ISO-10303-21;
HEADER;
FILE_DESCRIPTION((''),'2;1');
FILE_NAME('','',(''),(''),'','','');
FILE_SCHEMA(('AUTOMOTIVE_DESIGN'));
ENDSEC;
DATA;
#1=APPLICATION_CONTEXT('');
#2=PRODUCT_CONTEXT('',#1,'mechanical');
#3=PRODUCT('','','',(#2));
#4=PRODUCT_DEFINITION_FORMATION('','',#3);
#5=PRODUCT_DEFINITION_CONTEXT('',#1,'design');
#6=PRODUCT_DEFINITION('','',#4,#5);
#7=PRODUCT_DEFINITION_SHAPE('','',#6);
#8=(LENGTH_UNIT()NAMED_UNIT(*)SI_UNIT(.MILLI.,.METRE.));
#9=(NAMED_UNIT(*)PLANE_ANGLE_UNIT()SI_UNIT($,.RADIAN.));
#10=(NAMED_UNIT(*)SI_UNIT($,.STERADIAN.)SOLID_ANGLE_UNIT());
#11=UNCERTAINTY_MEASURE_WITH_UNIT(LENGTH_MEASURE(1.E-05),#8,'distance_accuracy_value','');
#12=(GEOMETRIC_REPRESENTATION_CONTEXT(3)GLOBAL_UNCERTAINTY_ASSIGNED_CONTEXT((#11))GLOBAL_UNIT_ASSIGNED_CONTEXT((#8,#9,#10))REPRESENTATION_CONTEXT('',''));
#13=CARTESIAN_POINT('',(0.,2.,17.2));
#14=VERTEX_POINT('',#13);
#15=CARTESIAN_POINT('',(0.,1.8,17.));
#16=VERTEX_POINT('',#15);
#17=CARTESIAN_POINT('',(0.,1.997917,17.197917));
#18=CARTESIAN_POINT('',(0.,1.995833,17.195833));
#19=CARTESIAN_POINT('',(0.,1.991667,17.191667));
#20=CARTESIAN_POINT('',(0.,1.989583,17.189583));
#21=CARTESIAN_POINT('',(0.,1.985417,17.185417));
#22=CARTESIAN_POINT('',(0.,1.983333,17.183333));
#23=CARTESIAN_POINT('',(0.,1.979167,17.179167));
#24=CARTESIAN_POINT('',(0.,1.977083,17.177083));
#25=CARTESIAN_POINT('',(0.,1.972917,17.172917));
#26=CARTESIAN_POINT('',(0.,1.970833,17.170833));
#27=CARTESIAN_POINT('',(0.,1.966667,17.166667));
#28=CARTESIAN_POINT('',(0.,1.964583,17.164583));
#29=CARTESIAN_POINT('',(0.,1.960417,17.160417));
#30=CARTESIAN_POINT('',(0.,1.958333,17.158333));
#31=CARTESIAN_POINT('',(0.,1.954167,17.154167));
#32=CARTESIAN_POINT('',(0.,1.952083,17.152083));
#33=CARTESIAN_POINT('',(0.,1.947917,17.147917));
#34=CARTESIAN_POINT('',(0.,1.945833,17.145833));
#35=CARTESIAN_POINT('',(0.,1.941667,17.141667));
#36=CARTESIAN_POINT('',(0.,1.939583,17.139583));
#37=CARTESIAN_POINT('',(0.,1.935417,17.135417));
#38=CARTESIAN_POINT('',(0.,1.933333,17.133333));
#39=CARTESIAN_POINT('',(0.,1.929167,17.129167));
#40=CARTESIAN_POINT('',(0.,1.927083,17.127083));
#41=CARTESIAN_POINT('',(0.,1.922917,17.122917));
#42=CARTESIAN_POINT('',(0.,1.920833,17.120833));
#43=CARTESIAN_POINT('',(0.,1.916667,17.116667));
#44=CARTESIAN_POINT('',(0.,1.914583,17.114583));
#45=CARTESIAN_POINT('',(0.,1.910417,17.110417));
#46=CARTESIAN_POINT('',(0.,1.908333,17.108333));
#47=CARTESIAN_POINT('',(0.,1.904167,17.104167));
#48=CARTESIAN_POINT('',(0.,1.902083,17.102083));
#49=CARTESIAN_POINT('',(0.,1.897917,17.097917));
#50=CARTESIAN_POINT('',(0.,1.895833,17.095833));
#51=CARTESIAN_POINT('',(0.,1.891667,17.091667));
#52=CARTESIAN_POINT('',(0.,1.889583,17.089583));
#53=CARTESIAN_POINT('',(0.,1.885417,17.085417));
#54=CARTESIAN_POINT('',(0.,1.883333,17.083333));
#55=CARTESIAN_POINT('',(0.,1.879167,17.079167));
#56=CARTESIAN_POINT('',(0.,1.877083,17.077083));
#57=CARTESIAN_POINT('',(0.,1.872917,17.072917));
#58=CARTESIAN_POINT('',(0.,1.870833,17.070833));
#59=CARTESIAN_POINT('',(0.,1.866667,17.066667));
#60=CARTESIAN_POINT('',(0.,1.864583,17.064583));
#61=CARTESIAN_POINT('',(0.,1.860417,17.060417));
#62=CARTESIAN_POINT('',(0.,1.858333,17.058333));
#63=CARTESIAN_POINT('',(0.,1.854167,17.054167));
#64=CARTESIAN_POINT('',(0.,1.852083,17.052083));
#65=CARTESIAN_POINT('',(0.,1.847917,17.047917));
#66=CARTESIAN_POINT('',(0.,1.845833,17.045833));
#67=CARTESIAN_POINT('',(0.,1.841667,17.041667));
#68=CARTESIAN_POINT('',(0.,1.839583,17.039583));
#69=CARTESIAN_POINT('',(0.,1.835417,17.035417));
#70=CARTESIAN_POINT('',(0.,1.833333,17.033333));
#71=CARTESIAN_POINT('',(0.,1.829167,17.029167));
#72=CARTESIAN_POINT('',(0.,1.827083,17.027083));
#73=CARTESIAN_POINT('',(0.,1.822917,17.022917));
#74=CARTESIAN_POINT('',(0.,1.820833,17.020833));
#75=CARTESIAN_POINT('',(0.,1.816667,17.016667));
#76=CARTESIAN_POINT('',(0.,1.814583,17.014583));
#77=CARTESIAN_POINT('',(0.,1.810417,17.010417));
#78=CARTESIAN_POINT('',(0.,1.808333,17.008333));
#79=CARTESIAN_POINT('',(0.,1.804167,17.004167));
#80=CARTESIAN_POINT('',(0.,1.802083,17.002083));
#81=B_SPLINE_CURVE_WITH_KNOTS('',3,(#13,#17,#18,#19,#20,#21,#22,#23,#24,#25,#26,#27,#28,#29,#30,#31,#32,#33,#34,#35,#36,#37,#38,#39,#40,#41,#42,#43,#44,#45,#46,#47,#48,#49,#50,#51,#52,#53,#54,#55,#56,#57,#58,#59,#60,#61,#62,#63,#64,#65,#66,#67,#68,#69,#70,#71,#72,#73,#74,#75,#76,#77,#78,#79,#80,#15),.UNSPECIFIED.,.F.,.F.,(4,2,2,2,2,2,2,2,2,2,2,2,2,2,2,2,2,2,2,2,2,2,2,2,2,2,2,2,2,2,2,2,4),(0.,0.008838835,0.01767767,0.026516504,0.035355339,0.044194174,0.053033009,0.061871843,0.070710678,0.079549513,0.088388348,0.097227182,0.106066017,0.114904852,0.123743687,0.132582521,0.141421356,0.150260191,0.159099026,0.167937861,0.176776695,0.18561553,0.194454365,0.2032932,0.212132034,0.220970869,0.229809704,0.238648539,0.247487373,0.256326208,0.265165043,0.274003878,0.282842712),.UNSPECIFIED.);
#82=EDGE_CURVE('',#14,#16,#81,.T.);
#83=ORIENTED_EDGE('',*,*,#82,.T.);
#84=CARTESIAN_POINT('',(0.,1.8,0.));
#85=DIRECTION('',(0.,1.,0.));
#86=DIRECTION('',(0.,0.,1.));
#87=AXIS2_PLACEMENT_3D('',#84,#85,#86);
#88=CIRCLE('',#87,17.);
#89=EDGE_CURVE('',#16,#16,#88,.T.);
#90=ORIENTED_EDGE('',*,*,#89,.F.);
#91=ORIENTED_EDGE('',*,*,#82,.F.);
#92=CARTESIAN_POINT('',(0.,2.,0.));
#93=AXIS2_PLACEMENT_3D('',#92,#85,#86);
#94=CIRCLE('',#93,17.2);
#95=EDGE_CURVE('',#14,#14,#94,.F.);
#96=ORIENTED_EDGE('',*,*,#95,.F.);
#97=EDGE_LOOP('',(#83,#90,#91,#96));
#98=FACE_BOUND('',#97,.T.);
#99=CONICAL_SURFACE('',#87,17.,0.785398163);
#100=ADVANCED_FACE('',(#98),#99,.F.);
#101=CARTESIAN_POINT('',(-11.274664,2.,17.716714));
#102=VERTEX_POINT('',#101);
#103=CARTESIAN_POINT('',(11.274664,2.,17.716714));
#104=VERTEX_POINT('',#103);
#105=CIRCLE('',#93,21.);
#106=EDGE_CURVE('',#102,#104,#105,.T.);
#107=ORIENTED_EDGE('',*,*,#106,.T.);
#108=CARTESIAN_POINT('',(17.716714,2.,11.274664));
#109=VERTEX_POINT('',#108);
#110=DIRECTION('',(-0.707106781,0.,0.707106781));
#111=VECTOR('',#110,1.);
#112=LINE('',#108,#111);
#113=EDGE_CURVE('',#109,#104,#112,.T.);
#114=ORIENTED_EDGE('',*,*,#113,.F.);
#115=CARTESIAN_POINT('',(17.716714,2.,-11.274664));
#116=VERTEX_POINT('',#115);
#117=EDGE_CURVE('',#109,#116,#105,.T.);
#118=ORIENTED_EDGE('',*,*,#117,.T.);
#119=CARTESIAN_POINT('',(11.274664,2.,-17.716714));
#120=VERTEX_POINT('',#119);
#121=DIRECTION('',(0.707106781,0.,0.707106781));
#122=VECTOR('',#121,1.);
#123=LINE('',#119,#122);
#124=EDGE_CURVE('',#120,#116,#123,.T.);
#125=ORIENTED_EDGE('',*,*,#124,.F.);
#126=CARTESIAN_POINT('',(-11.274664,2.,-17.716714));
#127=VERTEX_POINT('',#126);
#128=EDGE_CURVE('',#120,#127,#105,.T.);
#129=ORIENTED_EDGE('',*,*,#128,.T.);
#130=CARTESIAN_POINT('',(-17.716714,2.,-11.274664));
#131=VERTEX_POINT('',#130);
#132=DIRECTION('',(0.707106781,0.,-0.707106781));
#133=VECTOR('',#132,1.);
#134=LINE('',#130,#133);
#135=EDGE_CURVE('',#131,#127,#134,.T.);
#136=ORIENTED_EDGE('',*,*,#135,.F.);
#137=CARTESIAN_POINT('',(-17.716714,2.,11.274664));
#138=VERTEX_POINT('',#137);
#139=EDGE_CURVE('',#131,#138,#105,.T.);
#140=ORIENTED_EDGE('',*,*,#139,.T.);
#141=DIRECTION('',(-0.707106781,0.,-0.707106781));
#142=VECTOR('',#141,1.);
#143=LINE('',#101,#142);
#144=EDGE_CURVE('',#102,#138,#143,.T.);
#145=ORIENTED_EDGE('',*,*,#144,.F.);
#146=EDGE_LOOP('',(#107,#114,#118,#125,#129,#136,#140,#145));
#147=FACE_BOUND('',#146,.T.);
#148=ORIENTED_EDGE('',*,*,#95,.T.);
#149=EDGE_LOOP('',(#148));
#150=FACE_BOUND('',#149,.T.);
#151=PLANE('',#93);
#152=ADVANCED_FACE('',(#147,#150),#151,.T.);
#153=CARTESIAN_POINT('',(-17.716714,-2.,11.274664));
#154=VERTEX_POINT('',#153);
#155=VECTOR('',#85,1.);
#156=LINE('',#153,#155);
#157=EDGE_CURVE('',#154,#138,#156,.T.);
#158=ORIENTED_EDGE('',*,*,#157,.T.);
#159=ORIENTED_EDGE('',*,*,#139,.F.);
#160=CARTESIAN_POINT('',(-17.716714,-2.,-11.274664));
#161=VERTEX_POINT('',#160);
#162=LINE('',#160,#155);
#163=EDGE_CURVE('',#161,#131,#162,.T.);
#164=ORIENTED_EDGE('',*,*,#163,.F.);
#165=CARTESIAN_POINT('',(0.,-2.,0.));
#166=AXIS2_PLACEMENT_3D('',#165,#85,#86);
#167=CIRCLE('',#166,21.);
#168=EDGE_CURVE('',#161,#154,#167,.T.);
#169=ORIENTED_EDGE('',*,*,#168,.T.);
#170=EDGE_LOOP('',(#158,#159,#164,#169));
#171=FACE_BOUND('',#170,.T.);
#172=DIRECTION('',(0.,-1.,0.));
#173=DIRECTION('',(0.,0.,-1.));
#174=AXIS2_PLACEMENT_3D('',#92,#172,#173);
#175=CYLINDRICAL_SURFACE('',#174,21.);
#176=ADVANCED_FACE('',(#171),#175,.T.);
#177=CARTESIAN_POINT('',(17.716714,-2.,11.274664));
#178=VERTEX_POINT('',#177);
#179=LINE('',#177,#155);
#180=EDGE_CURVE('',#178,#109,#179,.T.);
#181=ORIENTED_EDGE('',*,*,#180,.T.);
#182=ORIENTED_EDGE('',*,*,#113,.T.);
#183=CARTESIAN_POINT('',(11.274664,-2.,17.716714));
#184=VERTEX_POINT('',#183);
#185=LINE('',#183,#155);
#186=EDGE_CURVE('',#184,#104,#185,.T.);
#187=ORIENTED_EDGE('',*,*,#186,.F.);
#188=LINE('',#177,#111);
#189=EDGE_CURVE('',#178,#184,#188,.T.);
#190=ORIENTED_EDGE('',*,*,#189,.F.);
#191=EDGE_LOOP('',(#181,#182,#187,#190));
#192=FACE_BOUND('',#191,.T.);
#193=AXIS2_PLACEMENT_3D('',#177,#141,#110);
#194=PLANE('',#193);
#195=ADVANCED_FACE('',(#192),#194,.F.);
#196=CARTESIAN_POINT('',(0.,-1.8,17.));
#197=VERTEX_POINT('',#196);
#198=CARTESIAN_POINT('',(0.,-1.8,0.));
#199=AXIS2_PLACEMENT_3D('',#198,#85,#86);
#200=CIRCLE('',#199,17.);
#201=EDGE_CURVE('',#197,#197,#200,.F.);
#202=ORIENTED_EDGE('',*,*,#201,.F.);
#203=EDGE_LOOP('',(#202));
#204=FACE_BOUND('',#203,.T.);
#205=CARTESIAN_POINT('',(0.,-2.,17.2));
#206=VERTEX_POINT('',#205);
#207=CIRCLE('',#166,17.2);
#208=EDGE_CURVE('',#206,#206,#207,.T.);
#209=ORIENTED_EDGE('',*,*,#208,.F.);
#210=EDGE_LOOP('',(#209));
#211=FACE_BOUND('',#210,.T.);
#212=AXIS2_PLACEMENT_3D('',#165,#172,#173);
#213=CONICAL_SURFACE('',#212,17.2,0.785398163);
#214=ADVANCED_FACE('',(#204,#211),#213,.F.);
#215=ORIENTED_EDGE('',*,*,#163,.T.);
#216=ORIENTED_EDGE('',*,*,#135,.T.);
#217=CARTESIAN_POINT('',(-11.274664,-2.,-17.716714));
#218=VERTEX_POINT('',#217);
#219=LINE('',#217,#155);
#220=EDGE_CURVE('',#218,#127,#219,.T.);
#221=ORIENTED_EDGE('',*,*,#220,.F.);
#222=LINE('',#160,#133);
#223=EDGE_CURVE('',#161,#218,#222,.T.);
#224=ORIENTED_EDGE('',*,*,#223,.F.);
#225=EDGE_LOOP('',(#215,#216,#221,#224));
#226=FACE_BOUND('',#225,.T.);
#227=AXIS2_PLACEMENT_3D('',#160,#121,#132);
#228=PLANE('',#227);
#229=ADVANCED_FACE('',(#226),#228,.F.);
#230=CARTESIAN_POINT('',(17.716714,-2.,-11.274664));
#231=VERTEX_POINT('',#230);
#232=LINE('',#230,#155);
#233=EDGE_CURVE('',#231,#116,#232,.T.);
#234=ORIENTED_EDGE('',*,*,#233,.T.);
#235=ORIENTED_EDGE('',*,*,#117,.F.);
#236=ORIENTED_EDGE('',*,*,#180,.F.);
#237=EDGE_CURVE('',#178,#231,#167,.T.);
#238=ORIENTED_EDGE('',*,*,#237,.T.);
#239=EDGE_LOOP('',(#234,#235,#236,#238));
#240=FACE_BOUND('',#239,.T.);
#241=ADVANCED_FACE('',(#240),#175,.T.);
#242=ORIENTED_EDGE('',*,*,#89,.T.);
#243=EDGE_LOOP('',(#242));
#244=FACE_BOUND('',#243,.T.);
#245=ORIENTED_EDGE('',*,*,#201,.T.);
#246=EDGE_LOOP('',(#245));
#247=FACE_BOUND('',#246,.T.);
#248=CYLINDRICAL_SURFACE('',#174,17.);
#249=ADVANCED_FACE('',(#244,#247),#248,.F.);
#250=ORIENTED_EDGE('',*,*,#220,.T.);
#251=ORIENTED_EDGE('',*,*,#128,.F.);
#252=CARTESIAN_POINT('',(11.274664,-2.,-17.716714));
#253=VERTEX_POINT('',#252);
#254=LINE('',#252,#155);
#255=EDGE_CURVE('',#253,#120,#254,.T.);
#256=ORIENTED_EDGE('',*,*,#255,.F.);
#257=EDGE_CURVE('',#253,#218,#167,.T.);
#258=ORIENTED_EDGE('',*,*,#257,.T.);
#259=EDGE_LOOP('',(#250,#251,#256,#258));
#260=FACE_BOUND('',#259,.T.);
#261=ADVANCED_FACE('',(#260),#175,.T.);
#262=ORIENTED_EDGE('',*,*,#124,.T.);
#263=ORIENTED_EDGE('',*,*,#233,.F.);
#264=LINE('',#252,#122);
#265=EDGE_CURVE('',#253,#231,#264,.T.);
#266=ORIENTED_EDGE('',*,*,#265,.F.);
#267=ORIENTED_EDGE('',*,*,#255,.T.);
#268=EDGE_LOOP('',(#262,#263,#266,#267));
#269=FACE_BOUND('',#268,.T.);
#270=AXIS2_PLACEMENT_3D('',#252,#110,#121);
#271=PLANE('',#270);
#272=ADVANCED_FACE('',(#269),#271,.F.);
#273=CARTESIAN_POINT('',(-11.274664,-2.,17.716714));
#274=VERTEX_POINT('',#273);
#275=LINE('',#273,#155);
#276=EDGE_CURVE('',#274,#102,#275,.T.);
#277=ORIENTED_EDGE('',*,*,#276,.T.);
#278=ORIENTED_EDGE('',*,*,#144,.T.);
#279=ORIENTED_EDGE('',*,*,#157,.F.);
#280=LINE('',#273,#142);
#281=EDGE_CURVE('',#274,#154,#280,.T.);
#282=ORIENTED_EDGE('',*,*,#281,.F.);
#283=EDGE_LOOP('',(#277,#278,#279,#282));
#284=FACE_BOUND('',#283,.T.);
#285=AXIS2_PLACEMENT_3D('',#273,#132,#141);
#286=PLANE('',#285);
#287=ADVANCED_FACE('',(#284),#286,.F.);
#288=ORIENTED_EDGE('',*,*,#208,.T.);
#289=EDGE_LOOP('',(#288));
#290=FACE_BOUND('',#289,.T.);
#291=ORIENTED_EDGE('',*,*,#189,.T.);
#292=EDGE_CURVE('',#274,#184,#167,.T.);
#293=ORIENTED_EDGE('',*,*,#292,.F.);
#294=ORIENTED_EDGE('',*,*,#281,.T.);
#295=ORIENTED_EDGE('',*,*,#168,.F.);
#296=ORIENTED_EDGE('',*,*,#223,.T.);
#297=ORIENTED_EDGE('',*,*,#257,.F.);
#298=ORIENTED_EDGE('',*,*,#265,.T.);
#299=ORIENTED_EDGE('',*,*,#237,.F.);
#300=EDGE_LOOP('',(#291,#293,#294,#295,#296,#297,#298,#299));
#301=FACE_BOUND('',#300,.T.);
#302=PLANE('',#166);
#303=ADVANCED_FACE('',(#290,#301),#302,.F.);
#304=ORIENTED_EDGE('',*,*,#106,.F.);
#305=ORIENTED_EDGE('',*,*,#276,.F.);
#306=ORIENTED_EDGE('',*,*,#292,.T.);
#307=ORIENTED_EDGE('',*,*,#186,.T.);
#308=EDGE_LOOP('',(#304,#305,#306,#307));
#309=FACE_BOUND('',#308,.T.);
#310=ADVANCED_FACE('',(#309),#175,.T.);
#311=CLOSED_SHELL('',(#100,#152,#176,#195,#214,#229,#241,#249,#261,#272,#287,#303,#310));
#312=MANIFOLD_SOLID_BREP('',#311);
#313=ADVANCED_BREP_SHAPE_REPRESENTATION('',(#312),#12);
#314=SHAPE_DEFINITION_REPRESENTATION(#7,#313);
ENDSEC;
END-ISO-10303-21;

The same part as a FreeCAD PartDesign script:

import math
import FreeCAD as App
import Part
import Sketcher
Q = App.Units.Quantity


def edges_at(feature, points):
    """Names of the edges that pass closest to the given points."""
    edges = feature.Shape.Edges
    near = lambda p: min(range(len(edges)), key=lambda i: edges[i].distToShape(Part.Vertex(*p))[0])
    return sorted({f"Edge{near(p) + 1}" for p in points})

doc = App.newDocument("Part")
body = doc.addObject("PartDesign::Body", "Body")

sketch1 = doc.addObject("Sketcher::SketchObject", "Sketch")
body.addObject(sketch1)
sketch1.AttachmentSupport = (doc.XZ_Plane, [""])
sketch1.MapMode = "FlatFace"
sketch1.addGeometry([
    Part.Circle(App.Vector(0, 0, 0), App.Vector(0, 0, 1), 21),
    Part.Circle(App.Vector(0, 0, 0), App.Vector(0, 0, 1), 17),
], False)
sketch1.addConstraint([
    Sketcher.Constraint("Coincident", 0, 3, -1, 1),
    Sketcher.Constraint("Coincident", 1, 3, -1, 1),
    Sketcher.Constraint("Diameter", 0, Q("42 mm")),
    Sketcher.Constraint("Diameter", 1, Q("34 mm")),
])
pad1 = doc.addObject("PartDesign::Pad", "Pad")
body.addObject(pad1)
pad1.Profile = sketch1
pad1.Length = 4
pad1.Midplane = True

sketch2 = doc.addObject("Sketcher::SketchObject", "Sketch001")
body.addObject(sketch2)
sketch2.AttachmentSupport = (doc.XZ_Plane, [""])
sketch2.MapMode = "FlatFace"
sketch2.addGeometry([
    Part.LineSegment(App.Vector(11, -18, 0), App.Vector(18, -11, 0)),
    Part.ArcOfCircle(Part.Circle(App.Vector(0, 0, 0), App.Vector(0, 0, 1), 21), math.radians(-58), math.radians(-32)),
], False)
sketch2.addConstraint([
    Sketcher.Constraint("Coincident", 0, 1, 1, 1),
    Sketcher.Constraint("Coincident", 1, 2, 0, 2),
    Sketcher.Constraint("Coincident", 1, 3, -1, 1),
    Sketcher.Constraint("Radius", 1, Q("21 mm")),
    Sketcher.Constraint("Angle", 0, Q("45 deg")),
    Sketcher.Constraint("DistanceX", 0, 1, 1, 2, Q("6.442049 mm")),
])
pocket1 = doc.addObject("PartDesign::Pocket", "Pocket")
body.addObject(pocket1)
pocket1.Profile = sketch2
pocket1.Length = 61.531504
pocket1.Midplane = True
doc.recompute()

polarpattern = doc.addObject("PartDesign::PolarPattern", "PolarPattern")
body.addObject(polarpattern)
polarpattern.Originals = [pocket1]
polarpattern.Axis = (doc.Y_Axis, [""])
polarpattern.Angle = 360
polarpattern.Occurrences = 4
body.Tip = polarpattern
doc.recompute()

chamfer = doc.addObject("PartDesign::Chamfer", "Chamfer")
body.addObject(chamfer)
chamfer.Base = (polarpattern, edges_at(polarpattern, [(0, -2, -17), (0, 2, -17)]))
chamfer.Size = 0.2

doc.recompute()
